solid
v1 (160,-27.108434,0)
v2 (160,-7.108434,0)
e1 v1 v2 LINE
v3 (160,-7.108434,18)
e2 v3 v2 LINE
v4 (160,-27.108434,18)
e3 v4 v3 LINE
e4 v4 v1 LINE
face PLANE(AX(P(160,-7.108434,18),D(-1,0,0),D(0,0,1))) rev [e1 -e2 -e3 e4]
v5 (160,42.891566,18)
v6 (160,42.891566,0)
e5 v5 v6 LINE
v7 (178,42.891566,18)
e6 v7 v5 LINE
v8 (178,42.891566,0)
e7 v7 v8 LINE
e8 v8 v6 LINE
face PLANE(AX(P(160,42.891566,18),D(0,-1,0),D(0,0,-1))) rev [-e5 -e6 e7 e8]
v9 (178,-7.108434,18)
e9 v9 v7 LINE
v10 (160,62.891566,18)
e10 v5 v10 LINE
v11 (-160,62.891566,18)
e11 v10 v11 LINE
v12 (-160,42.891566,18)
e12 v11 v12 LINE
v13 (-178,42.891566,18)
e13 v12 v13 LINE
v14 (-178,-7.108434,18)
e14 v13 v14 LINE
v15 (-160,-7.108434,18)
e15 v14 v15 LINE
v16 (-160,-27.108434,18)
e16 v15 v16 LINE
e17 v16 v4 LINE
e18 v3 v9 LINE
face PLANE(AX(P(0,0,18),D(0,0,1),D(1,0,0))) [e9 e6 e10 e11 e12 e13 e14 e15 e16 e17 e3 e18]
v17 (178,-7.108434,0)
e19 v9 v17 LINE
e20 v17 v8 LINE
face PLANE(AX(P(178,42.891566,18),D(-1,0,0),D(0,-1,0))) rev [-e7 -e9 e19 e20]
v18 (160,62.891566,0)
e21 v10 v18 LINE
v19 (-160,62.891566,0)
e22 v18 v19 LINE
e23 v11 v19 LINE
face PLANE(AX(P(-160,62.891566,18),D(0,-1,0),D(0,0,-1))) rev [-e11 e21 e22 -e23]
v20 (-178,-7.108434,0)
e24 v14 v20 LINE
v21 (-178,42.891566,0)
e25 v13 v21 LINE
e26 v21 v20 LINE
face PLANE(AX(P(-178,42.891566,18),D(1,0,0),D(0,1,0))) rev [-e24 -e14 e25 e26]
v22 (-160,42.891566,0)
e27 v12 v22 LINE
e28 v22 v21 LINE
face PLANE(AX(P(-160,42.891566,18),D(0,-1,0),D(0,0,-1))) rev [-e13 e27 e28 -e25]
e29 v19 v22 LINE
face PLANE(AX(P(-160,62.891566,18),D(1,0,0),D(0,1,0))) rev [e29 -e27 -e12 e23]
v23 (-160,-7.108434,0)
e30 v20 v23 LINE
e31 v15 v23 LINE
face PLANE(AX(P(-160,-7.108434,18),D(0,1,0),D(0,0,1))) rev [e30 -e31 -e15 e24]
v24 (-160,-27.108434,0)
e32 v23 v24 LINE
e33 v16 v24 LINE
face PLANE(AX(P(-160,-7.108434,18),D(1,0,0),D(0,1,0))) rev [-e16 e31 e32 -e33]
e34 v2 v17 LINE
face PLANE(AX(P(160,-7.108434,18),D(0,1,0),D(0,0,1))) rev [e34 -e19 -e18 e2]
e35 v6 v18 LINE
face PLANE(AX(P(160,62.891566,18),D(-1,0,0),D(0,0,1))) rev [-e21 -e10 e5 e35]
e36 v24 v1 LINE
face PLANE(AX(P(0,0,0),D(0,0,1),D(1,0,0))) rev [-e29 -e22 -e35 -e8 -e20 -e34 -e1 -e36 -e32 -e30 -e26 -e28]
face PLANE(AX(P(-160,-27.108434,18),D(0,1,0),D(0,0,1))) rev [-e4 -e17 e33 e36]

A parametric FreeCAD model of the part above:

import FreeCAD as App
import Part
import Sketcher


def add_polygon(sketch, points):
    """Adds a closed chain of lines whose ends are joined by coincident constraints."""
    first, n = sketch.GeometryCount, len(points)
    for a, b in zip(points, points[1:] + points[:1]):
        sketch.addGeometry(Part.LineSegment(App.Vector(*a, 0), App.Vector(*b, 0)), False)
    for i in range(n):
        sketch.addConstraint(Sketcher.Constraint("Coincident", first + i, 2, first + (i + 1) % n, 1))

doc = App.newDocument("Part")
body = doc.addObject("PartDesign::Body", "Body")

sketch1 = body.newObject("Sketcher::SketchObject", "Sketch")
sketch1.AttachmentSupport = (doc.getObject("XY_Plane"), [""])
sketch1.MapMode = "FlatFace"
add_polygon(sketch1, [(160, 62.891566), (-160, 62.891566), (-160, 42.891566), (-178, 42.891566), (-178, -7.108434), (-160, -7.108434), (-160, -27.108434), (160, -27.108434), (160, -7.108434), (178, -7.108434), (178, 42.891566), (160, 42.891566)])
sketch1.addConstraint(Sketcher.Constraint("Horizontal", 0))
sketch1.addConstraint(Sketcher.Constraint("Vertical", 1))
sketch1.addConstraint(Sketcher.Constraint("Horizontal", 2))
sketch1.addConstraint(Sketcher.Constraint("Vertical", 3))
sketch1.addConstraint(Sketcher.Constraint("Horizontal", 4))
sketch1.addConstraint(Sketcher.Constraint("Vertical", 5))
sketch1.addConstraint(Sketcher.Constraint("Horizontal", 6))
sketch1.addConstraint(Sketcher.Constraint("Vertical", 7))
sketch1.addConstraint(Sketcher.Constraint("Horizontal", 8))
sketch1.addConstraint(Sketcher.Constraint("Vertical", 9))
sketch1.addConstraint(Sketcher.Constraint("Horizontal", 10))
sketch1.addConstraint(Sketcher.Constraint("Vertical", 11))
sketch1.addConstraint(Sketcher.Constraint("Symmetric", 4, 2, 7, 2, -2))
sketch1.addConstraint(Sketcher.Constraint("Symmetric", 2, 2, 9, 2, -2))
sketch1.addConstraint(Sketcher.Constraint("Vertical", 1, 2, 4, 2))
sketch1.addConstraint(Sketcher.Constraint("Vertical", 7, 2, 10, 2))
sketch1.addConstraint(Sketcher.Constraint("Equal", 1, 5))
sketch1.addConstraint(Sketcher.Constraint("DistanceX", 0, 2, 0, 1, 320.0))
sketch1.addConstraint(Sketcher.Constraint("DistanceX", 2, 2, 2, 1, 18.0))
sketch1.addConstraint(Sketcher.Constraint("DistanceY", 1, 2, 1, 1, 20.0))
sketch1.addConstraint(Sketcher.Constraint("DistanceY", 3, 2, 3, 1, 50.0))
sketch1.addConstraint(Sketcher.Constraint("DistanceY", -1, 1, 0, 2, 62.891566))
pad1 = body.newObject("PartDesign::Pad", "Pad")
pad1.Profile = sketch1
pad1.Length = 18

doc.recompute()
